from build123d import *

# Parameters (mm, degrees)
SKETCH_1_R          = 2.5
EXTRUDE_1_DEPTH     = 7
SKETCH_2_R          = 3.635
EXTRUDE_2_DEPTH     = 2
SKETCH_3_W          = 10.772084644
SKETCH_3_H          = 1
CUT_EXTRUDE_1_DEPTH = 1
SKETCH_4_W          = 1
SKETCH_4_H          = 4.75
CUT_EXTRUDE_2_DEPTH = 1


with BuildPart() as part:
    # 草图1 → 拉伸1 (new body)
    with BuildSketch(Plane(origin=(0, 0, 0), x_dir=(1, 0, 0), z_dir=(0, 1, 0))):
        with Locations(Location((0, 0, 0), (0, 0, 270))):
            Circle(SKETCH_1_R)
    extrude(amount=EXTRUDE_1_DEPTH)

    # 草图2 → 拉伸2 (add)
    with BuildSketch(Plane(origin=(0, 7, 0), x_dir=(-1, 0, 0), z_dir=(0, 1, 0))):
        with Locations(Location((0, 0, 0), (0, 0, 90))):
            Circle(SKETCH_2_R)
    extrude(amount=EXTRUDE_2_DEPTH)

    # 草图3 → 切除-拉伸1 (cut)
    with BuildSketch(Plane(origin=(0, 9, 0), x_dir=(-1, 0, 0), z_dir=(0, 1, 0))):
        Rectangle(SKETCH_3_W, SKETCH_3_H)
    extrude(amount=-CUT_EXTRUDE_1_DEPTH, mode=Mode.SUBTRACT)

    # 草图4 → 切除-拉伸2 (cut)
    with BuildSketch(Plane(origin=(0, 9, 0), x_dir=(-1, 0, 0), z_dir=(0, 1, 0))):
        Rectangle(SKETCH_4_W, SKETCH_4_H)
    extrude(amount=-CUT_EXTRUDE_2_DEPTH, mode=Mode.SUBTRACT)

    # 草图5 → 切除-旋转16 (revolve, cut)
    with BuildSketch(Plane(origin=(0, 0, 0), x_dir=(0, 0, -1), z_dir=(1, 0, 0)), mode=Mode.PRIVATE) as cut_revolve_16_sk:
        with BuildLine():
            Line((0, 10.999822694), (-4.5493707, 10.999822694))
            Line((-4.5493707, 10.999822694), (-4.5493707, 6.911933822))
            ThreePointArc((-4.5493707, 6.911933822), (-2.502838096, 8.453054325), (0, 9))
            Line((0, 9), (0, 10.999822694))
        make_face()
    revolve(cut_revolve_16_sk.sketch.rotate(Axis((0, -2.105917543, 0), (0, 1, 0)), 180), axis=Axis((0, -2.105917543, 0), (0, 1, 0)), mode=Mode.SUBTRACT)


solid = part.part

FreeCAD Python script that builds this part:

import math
import FreeCAD as App
import Part
import Sketcher

V = App.Vector


def add_polygon(sketch, points):
    """Adds a closed chain of lines whose ends are joined by coincident constraints."""
    first, n = sketch.GeometryCount, len(points)
    for a, b in zip(points, points[1:] + points[:1]):
        sketch.addGeometry(Part.LineSegment(App.Vector(*a, 0), App.Vector(*b, 0)), False)
    for i in range(n):
        sketch.addConstraint(Sketcher.Constraint("Coincident", first + i, 2, first + (i + 1) % n, 1))

doc = App.newDocument("Part")
params = doc.addObject("Spreadsheet::Sheet", "Params")
for row, (alias, value) in enumerate([
    ("sketch1_diameter", "5 mm"),
    ("pad1_length", "7 mm"),
    ("sketch2_diameter", "7.27 mm"),
    ("pad2_length", "2 mm"),
    ("sketch3_height", "1 mm"),
    ("pocket1_length", "1 mm"),
    ("sketch4_width", "1 mm"),
    ("sketch4_height", "4.75 mm"),
    ("pocket2_length", "1 mm"),
    ("sketch5_radius", "6 mm"),
    ("groove_angle", "360 deg"),
], start=1):
    params.set(f"A{row}", alias)
    params.set(f"B{row}", "=" + value)
    params.setAlias(f"B{row}", alias)

body = doc.addObject("PartDesign::Body", "Body")

# Sketch on XZ plane
sketch1 = body.newObject("Sketcher::SketchObject", "Sketch")
sketch1.AttachmentSupport = (doc.getObject("XZ_Plane"), [""])
sketch1.MapMode = "FlatFace"
sketch1.addGeometry(Part.Circle(V(0, 0, 0), V(0, 0, 1), 2.5), False)
sketch1.addConstraint([
    Sketcher.Constraint("Coincident", 0, 3, -1, 1),
    Sketcher.Constraint("Diameter", 0, 5.0),
])
sketch1.setExpression("Constraints[1]", "Params.sketch1_diameter")
pad1 = body.newObject("PartDesign::Pad", "Pad")
pad1.Profile = sketch1
pad1.setExpression("Length", "Params.pad1_length")
pad1.Reversed = True

# Sketch on XZ plane
sketch2 = body.newObject("Sketcher::SketchObject", "Sketch001")
sketch2.AttachmentSupport = (doc.getObject("XZ_Plane"), [""])
sketch2.MapMode = "FlatFace"
sketch2.AttachmentOffset = App.Placement(V(0, 0, -7), App.Rotation())
sketch2.addGeometry(Part.Circle(V(0, 0, 0), V(0, 0, 1), 3.6), False)
sketch2.addConstraint([
    Sketcher.Constraint("Coincident", 0, 3, -1, 1),
    Sketcher.Constraint("Diameter", 0, 7.27),
])
sketch2.setExpression("Constraints[1]", "Params.sketch2_diameter")
pad2 = body.newObject("PartDesign::Pad", "Pad001")
pad2.Profile = sketch2
pad2.setExpression("Length", "Params.pad2_length")
pad2.Reversed = True

# Sketch on XZ plane
sketch3 = body.newObject("Sketcher::SketchObject", "Sketch002")
sketch3.AttachmentSupport = (doc.getObject("XZ_Plane"), [""])
sketch3.MapMode = "FlatFace"
sketch3.AttachmentOffset = App.Placement(V(0, 0, -9), App.Rotation())
add_polygon(sketch3, [(5.4, 0.5), (5.4, -0.5), (-5.4, -0.5), (-5.4, 0.5)])  # lines 0-3
sketch3.addConstraint([
    Sketcher.Constraint("Vertical", 0),
    Sketcher.Constraint("Horizontal", 1),
    Sketcher.Constraint("Vertical", 2),
    Sketcher.Constraint("Horizontal", 3),
    Sketcher.Constraint("Symmetric", 0, 2, 2, 2, -1, 1),
    Sketcher.Constraint("DistanceY", 0, 2, 0, 1, 1.0),
    Sketcher.Constraint("DistanceX", 1, 2, 1, 1, 10.772085),
])
sketch3.setExpression("Constraints[9]", "Params.sketch3_height")
pocket1 = body.newObject("PartDesign::Pocket", "Pocket")
pocket1.Profile = sketch3
pocket1.setExpression("Length", "Params.pocket1_length")
pocket1.Reversed = True

# Sketch on XZ plane
sketch4 = body.newObject("Sketcher::SketchObject", "Sketch003")
sketch4.AttachmentSupport = (doc.getObject("XZ_Plane"), [""])
sketch4.MapMode = "FlatFace"
sketch4.AttachmentOffset = App.Placement(V(0, 0, -9), App.Rotation())
add_polygon(sketch4, [(0.5, 2.4), (0.5, -2.4), (-0.5, -2.4), (-0.5, 2.4)])  # lines 0-3
sketch4.addConstraint([
    Sketcher.Constraint("Vertical", 0),
    Sketcher.Constraint("Horizontal", 1),
    Sketcher.Constraint("Vertical", 2),
    Sketcher.Constraint("Horizontal", 3),
    Sketcher.Constraint("Symmetric", 0, 2, 2, 2, -1, 1),
    Sketcher.Constraint("DistanceX", 1, 2, 1, 1, 1.0),
    Sketcher.Constraint("DistanceY", 0, 2, 0, 1, 4.75),
])
sketch4.setExpression("Constraints[9]", "Params.sketch4_width")
sketch4.setExpression("Constraints[10]", "Params.sketch4_height")
pocket2 = body.newObject("PartDesign::Pocket", "Pocket001")
pocket2.Profile = sketch4
pocket2.setExpression("Length", "Params.pocket2_length")
pocket2.Reversed = True

# Sketch on YZ plane
sketch5 = body.newObject("Sketcher::SketchObject", "Sketch004")
sketch5.AttachmentSupport = (doc.getObject("YZ_Plane"), [""])
sketch5.MapMode = "FlatFace"
sketch5.addGeometry([
    Part.LineSegment(V(11, 0, 0), V(11, 4.5, 0)),
    Part.LineSegment(V(11, 4.5, 0), V(6.9, 4.5, 0)),
    Part.ArcOfCircle(Part.Circle(V(3, 0, 0), V(0, 0, 1), 6), math.radians(0), math.radians(49)),
    Part.LineSegment(V(9, 0, 0), V(11, 0, 0)),
], False)
sketch5.addConstraint([
    Sketcher.Constraint("Coincident", 0, 2, 1, 1),
    Sketcher.Constraint("Coincident", 1, 2, 2, 2),
    Sketcher.Constraint("Coincident", 2, 1, 3, 1),
    Sketcher.Constraint("Coincident", 3, 2, 0, 1),
    Sketcher.Constraint("Vertical", 0),
    Sketcher.Constraint("Horizontal", 1),
    Sketcher.Constraint("Horizontal", 3),
    Sketcher.Constraint("PointOnObject", 2, 3, -1),
    Sketcher.Constraint("PointOnObject", 2, 1, -1),
    Sketcher.Constraint("Radius", 2, 6.0),
    Sketcher.Constraint("DistanceX", -1, 1, 2, 3, 3.0),
    Sketcher.Constraint("DistanceX", 1, 2, 1, 1, 4.087889),
    Sketcher.Constraint("DistanceY", 0, 1, 0, 2, 4.549371),
])
sketch5.setExpression("Constraints[9]", "Params.sketch5_radius")
groove = body.newObject("PartDesign::Groove", "Groove")
groove.Profile = sketch5
groove.ReferenceAxis = (sketch5, ["H_Axis"])
groove.setExpression("Angle", "Params.groove_angle")

doc.recompute()
